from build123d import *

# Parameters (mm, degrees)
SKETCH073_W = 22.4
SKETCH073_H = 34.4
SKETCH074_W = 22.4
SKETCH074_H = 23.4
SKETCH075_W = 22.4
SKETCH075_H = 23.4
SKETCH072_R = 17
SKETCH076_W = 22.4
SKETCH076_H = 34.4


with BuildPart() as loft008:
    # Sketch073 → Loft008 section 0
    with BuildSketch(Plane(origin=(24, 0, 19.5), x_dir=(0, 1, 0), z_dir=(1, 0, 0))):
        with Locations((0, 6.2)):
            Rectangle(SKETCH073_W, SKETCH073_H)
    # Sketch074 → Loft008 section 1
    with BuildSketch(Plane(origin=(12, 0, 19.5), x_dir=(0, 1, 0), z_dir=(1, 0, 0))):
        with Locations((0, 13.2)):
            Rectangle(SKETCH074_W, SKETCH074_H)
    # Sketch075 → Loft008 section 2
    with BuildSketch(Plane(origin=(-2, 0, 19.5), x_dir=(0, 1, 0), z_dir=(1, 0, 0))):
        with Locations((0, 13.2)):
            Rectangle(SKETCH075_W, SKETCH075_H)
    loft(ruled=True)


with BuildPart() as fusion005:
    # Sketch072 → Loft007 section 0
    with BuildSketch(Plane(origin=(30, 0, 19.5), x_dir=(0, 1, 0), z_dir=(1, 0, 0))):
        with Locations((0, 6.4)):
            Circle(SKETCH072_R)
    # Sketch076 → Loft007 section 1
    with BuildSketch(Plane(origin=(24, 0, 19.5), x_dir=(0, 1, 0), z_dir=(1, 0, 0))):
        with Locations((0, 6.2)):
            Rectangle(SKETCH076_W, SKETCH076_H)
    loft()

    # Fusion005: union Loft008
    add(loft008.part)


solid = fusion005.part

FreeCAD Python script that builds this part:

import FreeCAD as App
import Part
import Sketcher
Q = App.Units.Quantity

doc = App.newDocument("Part")
body = doc.addObject("PartDesign::Body", "Body")

# Sketch on YZ plane
sketch1 = body.newObject("Sketcher::SketchObject", "Sketch")
sketch1.AttachmentSupport = (doc.getObject("YZ_Plane"), [""])
sketch1.MapMode = "FlatFace"
sketch1.AttachmentOffset = App.Placement(App.Vector(0, 0, 24), App.Rotation())
sketch1.addGeometry(Part.LineSegment(App.Vector(-11, 43, 0), App.Vector(-11, 8, 0)), False)
sketch1.addGeometry(Part.LineSegment(App.Vector(-11, 8, 0), App.Vector(11, 8, 0)), False)
sketch1.addGeometry(Part.LineSegment(App.Vector(11, 8, 0), App.Vector(11, 43, 0)), False)
sketch1.addGeometry(Part.LineSegment(App.Vector(11, 43, 0), App.Vector(-11, 43, 0)), False)
sketch1.addConstraint(Sketcher.Constraint("Coincident", 0, 2, 1, 1))
sketch1.addConstraint(Sketcher.Constraint("Coincident", 1, 2, 2, 1))
sketch1.addConstraint(Sketcher.Constraint("Coincident", 2, 2, 3, 1))
sketch1.addConstraint(Sketcher.Constraint("Coincident", 3, 2, 0, 1))
sketch1.addConstraint(Sketcher.Constraint("Vertical", 0))
sketch1.addConstraint(Sketcher.Constraint("Horizontal", 1))
sketch1.addConstraint(Sketcher.Constraint("Vertical", 2))
sketch1.addConstraint(Sketcher.Constraint("Horizontal", 3))
sketch1.addConstraint(Sketcher.Constraint("DistanceX", 1, 1, 1, 2, Q("22.4 mm")))
sketch1.addConstraint(Sketcher.Constraint("DistanceY", 0, 2, 0, 1, Q("34.4 mm")))
sketch1.addConstraint(Sketcher.Constraint("DistanceX", 0, 2, -1, 1, Q("11.2 mm")))
sketch1.addConstraint(Sketcher.Constraint("DistanceY", -1, 1, 0, 2, Q("8.5 mm")))

# Sketch on YZ plane
sketch2 = body.newObject("Sketcher::SketchObject", "Sketch001")
sketch2.AttachmentSupport = (doc.getObject("YZ_Plane"), [""])
sketch2.MapMode = "FlatFace"
sketch2.AttachmentOffset = App.Placement(App.Vector(0, 0, 12), App.Rotation())
sketch2.addGeometry(Part.LineSegment(App.Vector(-11, 44, 0), App.Vector(-11, 21, 0)), False)
sketch2.addGeometry(Part.LineSegment(App.Vector(-11, 21, 0), App.Vector(11, 21, 0)), False)
sketch2.addGeometry(Part.LineSegment(App.Vector(11, 21, 0), App.Vector(11, 44, 0)), False)
sketch2.addGeometry(Part.LineSegment(App.Vector(11, 44, 0), App.Vector(-11, 44, 0)), False)
sketch2.addConstraint(Sketcher.Constraint("Coincident", 0, 2, 1, 1))
sketch2.addConstraint(Sketcher.Constraint("Coincident", 1, 2, 2, 1))
sketch2.addConstraint(Sketcher.Constraint("Coincident", 2, 2, 3, 1))
sketch2.addConstraint(Sketcher.Constraint("Coincident", 3, 2, 0, 1))
sketch2.addConstraint(Sketcher.Constraint("Vertical", 0))
sketch2.addConstraint(Sketcher.Constraint("Horizontal", 1))
sketch2.addConstraint(Sketcher.Constraint("Vertical", 2))
sketch2.addConstraint(Sketcher.Constraint("Horizontal", 3))
sketch2.addConstraint(Sketcher.Constraint("DistanceX", 1, 1, 1, 2, Q("22.4 mm")))
sketch2.addConstraint(Sketcher.Constraint("DistanceY", 0, 2, 0, 1, Q("23.4 mm")))
sketch2.addConstraint(Sketcher.Constraint("DistanceY", -1, 1, 0, 2, Q("21 mm")))
sketch2.addConstraint(Sketcher.Constraint("DistanceX", 0, 2, -1, 1, Q("11.2 mm")))

# Sketch on YZ plane
sketch3 = body.newObject("Sketcher::SketchObject", "Sketch002")
sketch3.AttachmentSupport = (doc.getObject("YZ_Plane"), [""])
sketch3.MapMode = "FlatFace"
sketch3.AttachmentOffset = App.Placement(App.Vector(0, 0, -2), App.Rotation())
sketch3.addGeometry(Part.LineSegment(App.Vector(-11, 44, 0), App.Vector(-11, 21, 0)), False)
sketch3.addGeometry(Part.LineSegment(App.Vector(-11, 21, 0), App.Vector(11, 21, 0)), False)
sketch3.addGeometry(Part.LineSegment(App.Vector(11, 21, 0), App.Vector(11, 44, 0)), False)
sketch3.addGeometry(Part.LineSegment(App.Vector(11, 44, 0), App.Vector(-11, 44, 0)), False)
sketch3.addConstraint(Sketcher.Constraint("Coincident", 0, 2, 1, 1))
sketch3.addConstraint(Sketcher.Constraint("Coincident", 1, 2, 2, 1))
sketch3.addConstraint(Sketcher.Constraint("Coincident", 2, 2, 3, 1))
sketch3.addConstraint(Sketcher.Constraint("Coincident", 3, 2, 0, 1))
sketch3.addConstraint(Sketcher.Constraint("Vertical", 0))
sketch3.addConstraint(Sketcher.Constraint("Horizontal", 1))
sketch3.addConstraint(Sketcher.Constraint("Vertical", 2))
sketch3.addConstraint(Sketcher.Constraint("Horizontal", 3))
sketch3.addConstraint(Sketcher.Constraint("DistanceX", 1, 1, 1, 2, Q("22.4 mm")))
sketch3.addConstraint(Sketcher.Constraint("DistanceY", 0, 2, 0, 1, Q("23.4 mm")))
sketch3.addConstraint(Sketcher.Constraint("DistanceY", -1, 1, 0, 2, Q("21 mm")))
sketch3.addConstraint(Sketcher.Constraint("DistanceX", 0, 2, -1, 1, Q("11.2 mm")))

additiveloft = body.newObject("PartDesign::AdditiveLoft", "AdditiveLoft")
additiveloft.Profile = sketch1
additiveloft.Sections = [sketch2, sketch3]
additiveloft.Ruled = True
body2 = doc.addObject("PartDesign::Body", "Body001")

# Sketch on YZ plane
sketch4 = body2.newObject("Sketcher::SketchObject", "Sketch003")
sketch4.AttachmentSupport = (doc.getObject("YZ_Plane001"), [""])
sketch4.MapMode = "FlatFace"
sketch4.AttachmentOffset = App.Placement(App.Vector(0, 0, 30), App.Rotation())
sketch4.addGeometry(Part.Circle(App.Vector(0, 26, 0), App.Vector(0, 0, 1), 17), False)
sketch4.addConstraint(Sketcher.Constraint("PointOnObject", 0, 3, -2))
sketch4.addConstraint(Sketcher.Constraint("Diameter", 0, Q("34 mm")))
sketch4.addConstraint(Sketcher.Constraint("DistanceY", -1, 1, 0, 3, Q("25.9 mm")))

# Sketch on YZ plane
sketch5 = body2.newObject("Sketcher::SketchObject", "Sketch004")
sketch5.AttachmentSupport = (doc.getObject("YZ_Plane001"), [""])
sketch5.MapMode = "FlatFace"
sketch5.AttachmentOffset = App.Placement(App.Vector(0, 0, 24), App.Rotation())
sketch5.addGeometry(Part.LineSegment(App.Vector(-11, 43, 0), App.Vector(-11, 8, 0)), False)
sketch5.addGeometry(Part.LineSegment(App.Vector(-11, 8, 0), App.Vector(11, 8, 0)), False)
sketch5.addGeometry(Part.LineSegment(App.Vector(11, 8, 0), App.Vector(11, 43, 0)), False)
sketch5.addGeometry(Part.LineSegment(App.Vector(11, 43, 0), App.Vector(-11, 43, 0)), False)
sketch5.addConstraint(Sketcher.Constraint("Coincident", 0, 2, 1, 1))
sketch5.addConstraint(Sketcher.Constraint("Coincident", 1, 2, 2, 1))
sketch5.addConstraint(Sketcher.Constraint("Coincident", 2, 2, 3, 1))
sketch5.addConstraint(Sketcher.Constraint("Coincident", 3, 2, 0, 1))
sketch5.addConstraint(Sketcher.Constraint("Vertical", 0))
sketch5.addConstraint(Sketcher.Constraint("Horizontal", 1))
sketch5.addConstraint(Sketcher.Constraint("Vertical", 2))
sketch5.addConstraint(Sketcher.Constraint("Horizontal", 3))
sketch5.addConstraint(Sketcher.Constraint("DistanceX", 1, 1, 1, 2, Q("22.4 mm")))
sketch5.addConstraint(Sketcher.Constraint("DistanceY", 0, 2, 0, 1, Q("34.4 mm")))
sketch5.addConstraint(Sketcher.Constraint("DistanceX", 0, 2, -1, 1, Q("11.2 mm")))
sketch5.addConstraint(Sketcher.Constraint("DistanceY", -1, 1, 0, 2, Q("8.5 mm")))

additiveloft2 = body2.newObject("PartDesign::AdditiveLoft", "AdditiveLoft001")
additiveloft2.Profile = sketch4
additiveloft2.Sections = [sketch5]
doc.recompute()

boolean = body2.newObject("PartDesign::Boolean", "Boolean")
boolean.Type = "Fuse"
boolean.addObjects([body])

doc.recompute()
